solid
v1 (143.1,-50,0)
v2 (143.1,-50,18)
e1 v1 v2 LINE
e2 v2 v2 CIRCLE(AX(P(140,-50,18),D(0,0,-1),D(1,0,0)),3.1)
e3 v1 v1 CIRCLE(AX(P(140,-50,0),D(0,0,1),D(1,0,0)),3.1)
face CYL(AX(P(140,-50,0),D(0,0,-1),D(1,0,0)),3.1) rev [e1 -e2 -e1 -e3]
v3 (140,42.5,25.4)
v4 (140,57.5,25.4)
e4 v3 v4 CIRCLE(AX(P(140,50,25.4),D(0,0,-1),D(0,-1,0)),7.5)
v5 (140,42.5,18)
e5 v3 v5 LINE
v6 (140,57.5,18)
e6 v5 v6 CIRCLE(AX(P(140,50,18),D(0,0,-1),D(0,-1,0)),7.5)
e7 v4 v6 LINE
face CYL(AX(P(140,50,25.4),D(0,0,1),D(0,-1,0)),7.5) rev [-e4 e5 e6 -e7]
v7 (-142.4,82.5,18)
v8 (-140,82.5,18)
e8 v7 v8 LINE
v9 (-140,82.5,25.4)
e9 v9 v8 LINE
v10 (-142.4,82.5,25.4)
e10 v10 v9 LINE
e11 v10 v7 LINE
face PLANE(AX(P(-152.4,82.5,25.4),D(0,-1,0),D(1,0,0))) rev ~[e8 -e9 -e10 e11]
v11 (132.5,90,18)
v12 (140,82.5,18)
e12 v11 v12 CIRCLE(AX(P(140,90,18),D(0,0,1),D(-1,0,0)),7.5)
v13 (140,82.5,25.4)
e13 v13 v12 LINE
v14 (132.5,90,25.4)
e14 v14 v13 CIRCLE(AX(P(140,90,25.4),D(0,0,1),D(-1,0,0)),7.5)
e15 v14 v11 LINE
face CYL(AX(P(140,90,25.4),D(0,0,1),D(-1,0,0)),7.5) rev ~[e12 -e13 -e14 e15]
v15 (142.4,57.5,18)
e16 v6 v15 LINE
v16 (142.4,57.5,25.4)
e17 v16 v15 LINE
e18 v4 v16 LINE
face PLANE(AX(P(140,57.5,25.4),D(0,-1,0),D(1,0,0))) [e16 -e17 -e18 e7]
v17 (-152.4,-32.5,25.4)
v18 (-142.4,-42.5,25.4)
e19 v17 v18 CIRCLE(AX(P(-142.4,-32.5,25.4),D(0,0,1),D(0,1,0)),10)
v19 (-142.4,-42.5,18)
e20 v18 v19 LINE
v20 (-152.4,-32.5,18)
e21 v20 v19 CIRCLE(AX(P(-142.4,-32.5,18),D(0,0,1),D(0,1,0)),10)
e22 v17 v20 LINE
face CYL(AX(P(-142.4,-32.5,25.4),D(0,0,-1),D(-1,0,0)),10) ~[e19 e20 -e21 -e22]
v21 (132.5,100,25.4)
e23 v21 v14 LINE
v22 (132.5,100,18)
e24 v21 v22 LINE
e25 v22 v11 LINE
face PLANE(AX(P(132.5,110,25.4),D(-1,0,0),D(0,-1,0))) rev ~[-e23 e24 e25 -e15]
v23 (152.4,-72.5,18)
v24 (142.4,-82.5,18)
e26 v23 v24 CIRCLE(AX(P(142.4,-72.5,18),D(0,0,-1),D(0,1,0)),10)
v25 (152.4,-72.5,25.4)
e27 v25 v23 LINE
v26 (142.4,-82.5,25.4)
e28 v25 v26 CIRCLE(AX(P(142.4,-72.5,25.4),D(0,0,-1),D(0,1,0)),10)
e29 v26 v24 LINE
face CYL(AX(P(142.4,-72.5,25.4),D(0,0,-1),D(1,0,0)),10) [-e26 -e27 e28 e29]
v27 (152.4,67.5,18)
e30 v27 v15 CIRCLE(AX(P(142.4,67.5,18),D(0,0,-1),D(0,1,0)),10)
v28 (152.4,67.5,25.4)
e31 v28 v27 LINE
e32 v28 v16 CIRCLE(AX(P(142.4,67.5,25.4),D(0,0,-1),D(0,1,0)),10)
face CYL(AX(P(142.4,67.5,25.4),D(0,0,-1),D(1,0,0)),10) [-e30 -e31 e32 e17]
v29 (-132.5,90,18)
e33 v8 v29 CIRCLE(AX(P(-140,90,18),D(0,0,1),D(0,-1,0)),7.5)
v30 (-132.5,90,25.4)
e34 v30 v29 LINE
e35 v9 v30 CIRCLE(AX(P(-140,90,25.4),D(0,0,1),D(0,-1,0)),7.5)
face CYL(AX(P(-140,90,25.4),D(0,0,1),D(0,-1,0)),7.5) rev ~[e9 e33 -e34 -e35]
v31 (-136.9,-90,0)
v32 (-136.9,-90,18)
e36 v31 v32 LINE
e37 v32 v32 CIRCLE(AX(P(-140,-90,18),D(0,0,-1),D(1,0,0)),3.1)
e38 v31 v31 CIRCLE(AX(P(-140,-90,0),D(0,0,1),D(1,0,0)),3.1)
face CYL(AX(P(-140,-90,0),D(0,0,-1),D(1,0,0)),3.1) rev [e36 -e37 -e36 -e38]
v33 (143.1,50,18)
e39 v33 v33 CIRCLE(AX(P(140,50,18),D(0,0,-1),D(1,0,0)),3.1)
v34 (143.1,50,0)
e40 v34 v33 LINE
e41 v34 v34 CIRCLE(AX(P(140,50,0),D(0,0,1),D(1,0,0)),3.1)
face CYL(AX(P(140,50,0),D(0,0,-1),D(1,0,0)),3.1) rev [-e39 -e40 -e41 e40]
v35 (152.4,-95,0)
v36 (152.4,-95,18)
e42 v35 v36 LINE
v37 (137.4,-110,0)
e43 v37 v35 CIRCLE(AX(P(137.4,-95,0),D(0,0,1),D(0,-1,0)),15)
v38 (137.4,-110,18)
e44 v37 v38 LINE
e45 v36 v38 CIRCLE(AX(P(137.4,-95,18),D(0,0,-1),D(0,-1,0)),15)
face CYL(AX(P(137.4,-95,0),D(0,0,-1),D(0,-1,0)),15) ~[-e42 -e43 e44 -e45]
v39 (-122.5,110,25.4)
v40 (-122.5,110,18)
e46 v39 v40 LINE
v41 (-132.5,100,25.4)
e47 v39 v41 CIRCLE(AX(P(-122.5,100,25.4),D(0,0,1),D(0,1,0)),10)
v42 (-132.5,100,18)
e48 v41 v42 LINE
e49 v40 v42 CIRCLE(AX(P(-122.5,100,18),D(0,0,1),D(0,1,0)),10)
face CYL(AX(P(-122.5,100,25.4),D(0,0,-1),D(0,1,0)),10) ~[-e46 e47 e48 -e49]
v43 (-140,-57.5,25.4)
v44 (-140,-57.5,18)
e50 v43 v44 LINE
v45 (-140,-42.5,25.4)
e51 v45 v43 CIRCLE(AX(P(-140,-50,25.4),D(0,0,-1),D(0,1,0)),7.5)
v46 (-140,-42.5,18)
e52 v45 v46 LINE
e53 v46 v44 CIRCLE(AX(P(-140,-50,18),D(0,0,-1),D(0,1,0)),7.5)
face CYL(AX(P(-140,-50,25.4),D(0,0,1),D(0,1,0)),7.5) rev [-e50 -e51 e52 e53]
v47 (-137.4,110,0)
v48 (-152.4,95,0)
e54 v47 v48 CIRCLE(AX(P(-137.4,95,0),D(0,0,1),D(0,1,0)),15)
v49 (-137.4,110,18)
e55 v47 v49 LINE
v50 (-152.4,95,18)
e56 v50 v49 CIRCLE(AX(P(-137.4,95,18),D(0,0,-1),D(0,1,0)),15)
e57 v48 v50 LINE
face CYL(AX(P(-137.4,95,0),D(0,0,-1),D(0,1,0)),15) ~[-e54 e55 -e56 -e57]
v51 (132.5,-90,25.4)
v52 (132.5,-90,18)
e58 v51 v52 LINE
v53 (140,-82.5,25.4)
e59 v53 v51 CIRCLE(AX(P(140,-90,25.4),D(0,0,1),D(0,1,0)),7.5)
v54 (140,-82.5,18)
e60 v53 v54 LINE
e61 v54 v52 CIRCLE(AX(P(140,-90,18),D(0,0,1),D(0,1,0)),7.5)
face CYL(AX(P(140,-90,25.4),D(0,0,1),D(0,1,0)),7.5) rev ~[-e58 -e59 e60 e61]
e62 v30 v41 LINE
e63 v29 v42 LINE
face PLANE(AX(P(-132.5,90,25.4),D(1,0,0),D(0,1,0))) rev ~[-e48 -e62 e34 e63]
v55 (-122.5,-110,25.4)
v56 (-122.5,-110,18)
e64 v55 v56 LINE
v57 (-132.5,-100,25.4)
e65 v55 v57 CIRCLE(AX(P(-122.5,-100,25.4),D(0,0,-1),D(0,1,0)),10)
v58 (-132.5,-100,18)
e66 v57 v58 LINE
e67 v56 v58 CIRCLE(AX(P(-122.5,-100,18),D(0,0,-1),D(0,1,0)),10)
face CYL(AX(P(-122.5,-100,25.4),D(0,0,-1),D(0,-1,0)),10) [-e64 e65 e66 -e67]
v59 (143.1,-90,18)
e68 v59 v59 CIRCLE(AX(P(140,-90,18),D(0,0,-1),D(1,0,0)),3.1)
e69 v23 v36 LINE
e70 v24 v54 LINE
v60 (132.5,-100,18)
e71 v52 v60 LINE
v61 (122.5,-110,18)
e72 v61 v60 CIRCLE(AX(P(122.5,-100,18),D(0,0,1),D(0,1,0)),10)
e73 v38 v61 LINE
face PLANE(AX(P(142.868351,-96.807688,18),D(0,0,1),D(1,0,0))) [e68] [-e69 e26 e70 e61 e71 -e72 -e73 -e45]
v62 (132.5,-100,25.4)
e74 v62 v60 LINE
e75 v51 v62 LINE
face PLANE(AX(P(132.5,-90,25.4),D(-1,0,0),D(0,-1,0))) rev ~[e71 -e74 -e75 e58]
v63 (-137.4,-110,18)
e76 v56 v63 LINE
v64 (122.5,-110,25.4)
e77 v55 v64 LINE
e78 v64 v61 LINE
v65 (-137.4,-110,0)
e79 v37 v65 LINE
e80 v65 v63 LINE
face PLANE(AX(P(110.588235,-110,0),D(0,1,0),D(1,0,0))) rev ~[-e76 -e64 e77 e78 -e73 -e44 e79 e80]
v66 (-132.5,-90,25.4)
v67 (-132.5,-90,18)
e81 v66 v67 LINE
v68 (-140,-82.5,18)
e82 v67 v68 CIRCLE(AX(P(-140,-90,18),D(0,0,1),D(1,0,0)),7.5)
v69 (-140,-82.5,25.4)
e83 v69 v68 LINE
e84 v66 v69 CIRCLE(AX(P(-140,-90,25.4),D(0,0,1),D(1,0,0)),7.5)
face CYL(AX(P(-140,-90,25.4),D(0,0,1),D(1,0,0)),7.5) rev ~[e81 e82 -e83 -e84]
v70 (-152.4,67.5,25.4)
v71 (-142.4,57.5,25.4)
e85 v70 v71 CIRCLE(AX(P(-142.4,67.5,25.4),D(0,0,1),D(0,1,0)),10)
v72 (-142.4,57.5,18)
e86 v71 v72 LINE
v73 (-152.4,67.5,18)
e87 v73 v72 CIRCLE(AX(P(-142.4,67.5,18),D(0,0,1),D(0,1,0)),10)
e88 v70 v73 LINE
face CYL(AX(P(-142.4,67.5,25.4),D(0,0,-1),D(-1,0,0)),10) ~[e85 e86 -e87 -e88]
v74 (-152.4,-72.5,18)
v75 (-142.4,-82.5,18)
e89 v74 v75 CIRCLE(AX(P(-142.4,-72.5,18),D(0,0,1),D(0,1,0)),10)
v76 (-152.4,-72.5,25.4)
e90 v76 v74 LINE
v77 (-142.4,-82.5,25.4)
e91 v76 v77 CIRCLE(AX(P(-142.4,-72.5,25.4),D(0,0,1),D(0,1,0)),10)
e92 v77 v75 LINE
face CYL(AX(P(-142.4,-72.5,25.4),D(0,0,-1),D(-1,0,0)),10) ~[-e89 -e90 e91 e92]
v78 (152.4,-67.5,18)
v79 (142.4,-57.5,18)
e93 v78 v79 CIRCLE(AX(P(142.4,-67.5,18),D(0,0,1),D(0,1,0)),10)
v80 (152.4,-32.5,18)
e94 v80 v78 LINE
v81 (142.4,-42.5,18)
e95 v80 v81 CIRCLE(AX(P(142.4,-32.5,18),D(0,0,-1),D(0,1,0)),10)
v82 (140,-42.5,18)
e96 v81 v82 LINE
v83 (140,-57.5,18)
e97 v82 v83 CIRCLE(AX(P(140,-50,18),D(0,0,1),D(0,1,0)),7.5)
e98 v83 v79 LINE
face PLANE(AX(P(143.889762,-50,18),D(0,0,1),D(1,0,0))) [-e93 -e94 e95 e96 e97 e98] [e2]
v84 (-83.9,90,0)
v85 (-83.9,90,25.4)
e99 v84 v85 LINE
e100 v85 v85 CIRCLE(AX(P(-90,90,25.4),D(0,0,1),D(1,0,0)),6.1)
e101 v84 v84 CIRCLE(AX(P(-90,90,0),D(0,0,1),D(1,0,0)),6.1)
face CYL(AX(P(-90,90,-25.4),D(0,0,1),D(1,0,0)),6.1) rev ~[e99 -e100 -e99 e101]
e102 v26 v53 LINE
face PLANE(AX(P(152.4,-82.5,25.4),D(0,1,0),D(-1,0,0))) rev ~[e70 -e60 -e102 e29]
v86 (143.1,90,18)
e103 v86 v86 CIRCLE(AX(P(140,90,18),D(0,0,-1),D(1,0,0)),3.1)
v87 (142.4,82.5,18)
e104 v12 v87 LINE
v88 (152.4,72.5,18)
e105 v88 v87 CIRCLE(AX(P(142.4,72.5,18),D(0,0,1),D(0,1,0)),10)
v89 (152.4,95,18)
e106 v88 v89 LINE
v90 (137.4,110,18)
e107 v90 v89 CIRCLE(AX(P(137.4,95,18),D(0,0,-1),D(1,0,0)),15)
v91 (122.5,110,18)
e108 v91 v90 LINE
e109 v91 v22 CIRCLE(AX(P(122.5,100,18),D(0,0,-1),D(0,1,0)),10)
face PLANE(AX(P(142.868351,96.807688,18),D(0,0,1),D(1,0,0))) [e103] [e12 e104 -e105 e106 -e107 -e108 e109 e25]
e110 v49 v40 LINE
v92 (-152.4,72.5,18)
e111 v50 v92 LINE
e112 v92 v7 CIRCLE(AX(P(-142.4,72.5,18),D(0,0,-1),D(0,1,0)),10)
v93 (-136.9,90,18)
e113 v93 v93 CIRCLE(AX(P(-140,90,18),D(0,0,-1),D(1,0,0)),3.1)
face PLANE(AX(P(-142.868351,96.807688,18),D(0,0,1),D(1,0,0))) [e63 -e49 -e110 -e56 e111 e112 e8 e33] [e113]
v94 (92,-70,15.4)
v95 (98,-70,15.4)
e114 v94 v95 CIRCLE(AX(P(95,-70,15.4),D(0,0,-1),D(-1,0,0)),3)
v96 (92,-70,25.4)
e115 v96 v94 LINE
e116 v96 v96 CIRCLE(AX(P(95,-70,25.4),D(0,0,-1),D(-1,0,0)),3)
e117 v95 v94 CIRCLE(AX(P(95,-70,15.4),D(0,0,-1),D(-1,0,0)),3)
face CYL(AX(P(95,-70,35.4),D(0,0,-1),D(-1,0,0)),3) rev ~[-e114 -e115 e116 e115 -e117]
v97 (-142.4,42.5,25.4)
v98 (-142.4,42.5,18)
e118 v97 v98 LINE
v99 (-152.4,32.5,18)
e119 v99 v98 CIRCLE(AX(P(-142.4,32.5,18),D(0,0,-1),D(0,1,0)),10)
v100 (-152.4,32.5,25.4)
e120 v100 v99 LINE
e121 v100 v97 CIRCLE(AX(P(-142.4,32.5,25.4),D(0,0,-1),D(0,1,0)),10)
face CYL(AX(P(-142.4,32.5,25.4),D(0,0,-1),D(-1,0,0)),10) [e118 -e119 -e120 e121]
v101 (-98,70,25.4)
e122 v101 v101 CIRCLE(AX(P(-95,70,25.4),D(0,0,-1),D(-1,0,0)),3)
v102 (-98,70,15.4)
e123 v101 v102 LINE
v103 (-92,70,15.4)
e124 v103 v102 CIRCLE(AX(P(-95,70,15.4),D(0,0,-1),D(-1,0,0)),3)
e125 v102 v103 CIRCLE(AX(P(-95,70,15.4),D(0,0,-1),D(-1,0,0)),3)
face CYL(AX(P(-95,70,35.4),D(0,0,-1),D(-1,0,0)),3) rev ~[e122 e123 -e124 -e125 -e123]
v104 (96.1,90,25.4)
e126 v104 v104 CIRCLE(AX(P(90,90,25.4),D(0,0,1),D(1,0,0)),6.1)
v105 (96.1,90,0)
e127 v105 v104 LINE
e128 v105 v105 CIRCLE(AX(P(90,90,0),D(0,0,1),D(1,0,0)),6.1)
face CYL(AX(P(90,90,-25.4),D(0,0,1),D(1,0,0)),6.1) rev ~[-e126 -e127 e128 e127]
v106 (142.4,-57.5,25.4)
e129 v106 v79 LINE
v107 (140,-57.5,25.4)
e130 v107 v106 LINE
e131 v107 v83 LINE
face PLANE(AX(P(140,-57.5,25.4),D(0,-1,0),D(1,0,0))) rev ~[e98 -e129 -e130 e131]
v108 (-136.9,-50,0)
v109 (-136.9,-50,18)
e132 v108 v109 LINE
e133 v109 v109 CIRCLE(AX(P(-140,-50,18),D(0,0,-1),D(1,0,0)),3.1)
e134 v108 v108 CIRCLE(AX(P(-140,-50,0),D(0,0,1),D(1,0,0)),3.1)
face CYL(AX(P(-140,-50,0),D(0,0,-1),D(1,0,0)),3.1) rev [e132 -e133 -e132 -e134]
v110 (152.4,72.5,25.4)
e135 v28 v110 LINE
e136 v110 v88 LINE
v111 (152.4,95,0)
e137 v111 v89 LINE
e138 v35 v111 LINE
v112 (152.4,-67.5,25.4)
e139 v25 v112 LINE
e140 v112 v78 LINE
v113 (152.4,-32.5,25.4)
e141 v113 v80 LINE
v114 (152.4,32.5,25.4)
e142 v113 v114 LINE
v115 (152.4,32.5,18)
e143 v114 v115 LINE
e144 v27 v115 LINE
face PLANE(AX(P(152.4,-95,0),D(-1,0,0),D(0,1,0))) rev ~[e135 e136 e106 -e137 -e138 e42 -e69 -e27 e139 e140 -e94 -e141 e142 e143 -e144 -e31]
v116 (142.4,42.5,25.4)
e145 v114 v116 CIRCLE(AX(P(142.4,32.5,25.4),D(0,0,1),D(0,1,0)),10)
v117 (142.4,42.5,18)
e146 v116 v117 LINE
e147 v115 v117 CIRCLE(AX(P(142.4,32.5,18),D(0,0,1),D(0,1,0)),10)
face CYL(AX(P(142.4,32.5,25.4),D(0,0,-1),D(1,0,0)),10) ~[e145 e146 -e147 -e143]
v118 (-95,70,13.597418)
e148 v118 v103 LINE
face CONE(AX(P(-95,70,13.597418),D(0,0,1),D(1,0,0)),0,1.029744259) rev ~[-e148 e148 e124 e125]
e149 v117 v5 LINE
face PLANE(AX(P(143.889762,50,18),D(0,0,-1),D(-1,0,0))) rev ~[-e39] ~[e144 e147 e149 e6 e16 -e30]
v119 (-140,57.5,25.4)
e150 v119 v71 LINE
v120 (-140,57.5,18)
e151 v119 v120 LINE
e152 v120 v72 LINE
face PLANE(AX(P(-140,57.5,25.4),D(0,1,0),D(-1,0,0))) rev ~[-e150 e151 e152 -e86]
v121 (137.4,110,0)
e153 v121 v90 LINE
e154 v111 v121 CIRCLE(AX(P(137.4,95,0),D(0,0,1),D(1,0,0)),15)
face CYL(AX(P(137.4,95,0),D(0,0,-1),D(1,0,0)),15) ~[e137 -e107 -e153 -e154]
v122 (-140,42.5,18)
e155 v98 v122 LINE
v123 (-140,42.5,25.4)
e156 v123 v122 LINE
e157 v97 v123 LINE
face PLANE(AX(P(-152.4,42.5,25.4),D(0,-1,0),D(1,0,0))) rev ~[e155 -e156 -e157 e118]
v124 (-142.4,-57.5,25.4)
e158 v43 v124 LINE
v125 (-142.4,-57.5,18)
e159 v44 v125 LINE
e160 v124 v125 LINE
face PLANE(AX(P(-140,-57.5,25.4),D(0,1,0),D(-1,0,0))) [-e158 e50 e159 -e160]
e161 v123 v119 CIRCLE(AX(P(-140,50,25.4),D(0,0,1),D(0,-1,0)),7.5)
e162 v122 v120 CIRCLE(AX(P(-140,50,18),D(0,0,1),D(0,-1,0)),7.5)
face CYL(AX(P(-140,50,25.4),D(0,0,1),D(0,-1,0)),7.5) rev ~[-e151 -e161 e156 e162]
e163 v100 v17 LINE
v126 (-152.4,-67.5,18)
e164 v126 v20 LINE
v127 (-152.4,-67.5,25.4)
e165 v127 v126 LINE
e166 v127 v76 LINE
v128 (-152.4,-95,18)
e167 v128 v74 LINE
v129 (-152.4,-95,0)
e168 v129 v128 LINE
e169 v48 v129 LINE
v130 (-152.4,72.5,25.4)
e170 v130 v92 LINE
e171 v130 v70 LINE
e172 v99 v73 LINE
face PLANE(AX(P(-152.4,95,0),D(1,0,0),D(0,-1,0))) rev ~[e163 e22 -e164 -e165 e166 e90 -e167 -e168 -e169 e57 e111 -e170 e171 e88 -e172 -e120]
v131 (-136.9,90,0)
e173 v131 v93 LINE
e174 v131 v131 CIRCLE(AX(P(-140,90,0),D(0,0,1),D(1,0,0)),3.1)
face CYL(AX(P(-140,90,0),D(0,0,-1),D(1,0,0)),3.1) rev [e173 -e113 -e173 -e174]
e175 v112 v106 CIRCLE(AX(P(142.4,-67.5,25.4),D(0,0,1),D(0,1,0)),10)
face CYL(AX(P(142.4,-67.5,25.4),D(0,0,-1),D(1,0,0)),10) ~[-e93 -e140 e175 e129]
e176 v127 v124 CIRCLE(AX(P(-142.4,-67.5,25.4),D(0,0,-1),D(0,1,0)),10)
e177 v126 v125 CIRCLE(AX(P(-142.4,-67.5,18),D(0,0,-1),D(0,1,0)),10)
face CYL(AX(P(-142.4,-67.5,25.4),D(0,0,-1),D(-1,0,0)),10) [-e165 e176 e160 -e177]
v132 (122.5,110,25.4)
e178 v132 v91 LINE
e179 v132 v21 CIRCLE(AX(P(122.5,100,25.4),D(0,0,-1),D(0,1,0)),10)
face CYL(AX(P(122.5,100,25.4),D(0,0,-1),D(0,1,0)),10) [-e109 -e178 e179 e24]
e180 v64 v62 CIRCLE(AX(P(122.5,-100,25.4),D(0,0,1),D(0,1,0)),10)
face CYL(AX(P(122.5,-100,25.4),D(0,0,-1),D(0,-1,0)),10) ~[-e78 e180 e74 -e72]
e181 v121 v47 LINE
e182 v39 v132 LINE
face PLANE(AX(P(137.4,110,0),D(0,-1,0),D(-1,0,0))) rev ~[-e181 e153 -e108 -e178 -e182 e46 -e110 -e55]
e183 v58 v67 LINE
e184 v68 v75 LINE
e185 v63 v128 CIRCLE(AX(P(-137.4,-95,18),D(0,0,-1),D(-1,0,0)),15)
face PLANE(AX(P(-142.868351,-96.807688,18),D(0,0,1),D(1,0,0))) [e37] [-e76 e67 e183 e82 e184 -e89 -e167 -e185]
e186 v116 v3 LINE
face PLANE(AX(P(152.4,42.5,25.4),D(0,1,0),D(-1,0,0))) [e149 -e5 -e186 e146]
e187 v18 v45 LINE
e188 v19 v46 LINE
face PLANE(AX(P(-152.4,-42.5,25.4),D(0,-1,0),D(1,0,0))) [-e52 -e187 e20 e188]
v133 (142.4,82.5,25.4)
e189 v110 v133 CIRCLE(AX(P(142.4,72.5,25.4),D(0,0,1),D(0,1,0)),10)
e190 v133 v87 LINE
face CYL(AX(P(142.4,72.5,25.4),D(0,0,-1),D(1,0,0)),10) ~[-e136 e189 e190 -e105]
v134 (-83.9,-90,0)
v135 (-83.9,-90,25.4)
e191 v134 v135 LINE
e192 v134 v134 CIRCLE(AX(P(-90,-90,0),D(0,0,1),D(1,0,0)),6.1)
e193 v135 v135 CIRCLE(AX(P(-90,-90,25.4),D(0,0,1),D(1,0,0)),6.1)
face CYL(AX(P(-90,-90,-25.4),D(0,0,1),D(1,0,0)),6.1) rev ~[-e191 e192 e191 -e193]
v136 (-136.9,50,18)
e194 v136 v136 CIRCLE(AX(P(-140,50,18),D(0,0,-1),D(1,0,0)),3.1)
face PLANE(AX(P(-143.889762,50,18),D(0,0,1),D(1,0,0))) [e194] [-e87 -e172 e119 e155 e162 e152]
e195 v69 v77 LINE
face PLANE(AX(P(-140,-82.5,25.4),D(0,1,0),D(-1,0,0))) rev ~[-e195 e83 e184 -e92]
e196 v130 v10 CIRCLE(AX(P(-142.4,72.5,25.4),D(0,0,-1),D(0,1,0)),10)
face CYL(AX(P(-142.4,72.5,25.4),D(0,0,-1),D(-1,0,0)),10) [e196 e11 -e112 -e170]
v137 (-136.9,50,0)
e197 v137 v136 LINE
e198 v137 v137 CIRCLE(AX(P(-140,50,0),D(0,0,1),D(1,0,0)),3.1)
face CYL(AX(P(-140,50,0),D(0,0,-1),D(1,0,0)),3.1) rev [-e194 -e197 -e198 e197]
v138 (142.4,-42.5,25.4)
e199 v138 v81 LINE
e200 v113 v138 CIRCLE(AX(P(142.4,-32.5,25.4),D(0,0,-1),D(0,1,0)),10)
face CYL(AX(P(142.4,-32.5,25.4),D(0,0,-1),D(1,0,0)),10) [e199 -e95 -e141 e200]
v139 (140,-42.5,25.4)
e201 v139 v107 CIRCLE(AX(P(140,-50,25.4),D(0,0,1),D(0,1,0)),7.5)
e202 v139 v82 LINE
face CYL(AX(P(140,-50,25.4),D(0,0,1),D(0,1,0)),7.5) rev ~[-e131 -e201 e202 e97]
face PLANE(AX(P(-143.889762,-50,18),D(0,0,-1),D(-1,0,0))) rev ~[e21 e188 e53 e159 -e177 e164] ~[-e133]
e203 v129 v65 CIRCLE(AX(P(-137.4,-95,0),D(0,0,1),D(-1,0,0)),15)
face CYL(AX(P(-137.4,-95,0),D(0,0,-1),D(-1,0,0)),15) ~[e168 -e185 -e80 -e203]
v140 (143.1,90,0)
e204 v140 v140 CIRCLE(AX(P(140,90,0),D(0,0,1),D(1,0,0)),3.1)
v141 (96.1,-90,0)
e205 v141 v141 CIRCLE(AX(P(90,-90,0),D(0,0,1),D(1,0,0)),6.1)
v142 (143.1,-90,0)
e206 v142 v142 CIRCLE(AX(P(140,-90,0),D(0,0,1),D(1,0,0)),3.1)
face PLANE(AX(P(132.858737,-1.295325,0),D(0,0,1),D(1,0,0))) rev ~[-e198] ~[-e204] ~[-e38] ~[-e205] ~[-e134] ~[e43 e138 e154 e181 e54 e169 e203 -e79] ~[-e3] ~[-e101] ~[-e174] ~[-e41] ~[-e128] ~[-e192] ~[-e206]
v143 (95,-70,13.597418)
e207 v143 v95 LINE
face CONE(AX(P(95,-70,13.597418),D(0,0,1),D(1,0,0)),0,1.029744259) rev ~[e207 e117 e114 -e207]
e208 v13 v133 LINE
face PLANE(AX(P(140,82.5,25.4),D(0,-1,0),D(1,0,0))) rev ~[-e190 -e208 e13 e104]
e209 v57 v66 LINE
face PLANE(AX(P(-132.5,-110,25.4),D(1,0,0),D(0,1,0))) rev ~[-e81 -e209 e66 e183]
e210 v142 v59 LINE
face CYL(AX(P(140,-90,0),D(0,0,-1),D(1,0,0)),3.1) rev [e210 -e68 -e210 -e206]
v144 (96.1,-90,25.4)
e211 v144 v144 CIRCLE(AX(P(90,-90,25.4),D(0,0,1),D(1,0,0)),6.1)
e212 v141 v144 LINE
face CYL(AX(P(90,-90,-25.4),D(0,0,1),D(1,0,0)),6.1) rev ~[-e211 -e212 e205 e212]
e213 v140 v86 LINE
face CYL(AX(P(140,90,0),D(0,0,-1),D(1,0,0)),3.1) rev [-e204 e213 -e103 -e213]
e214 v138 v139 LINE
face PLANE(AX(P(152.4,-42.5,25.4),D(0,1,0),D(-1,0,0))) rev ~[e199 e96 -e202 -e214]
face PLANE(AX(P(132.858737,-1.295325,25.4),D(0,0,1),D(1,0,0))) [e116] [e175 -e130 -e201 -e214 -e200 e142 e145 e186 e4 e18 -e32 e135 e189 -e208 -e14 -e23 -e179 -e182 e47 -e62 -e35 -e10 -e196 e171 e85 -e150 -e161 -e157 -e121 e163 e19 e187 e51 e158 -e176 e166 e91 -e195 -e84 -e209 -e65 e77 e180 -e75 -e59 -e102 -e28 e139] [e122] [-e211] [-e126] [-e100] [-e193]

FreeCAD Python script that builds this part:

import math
import FreeCAD as App
import Part
import Sketcher
Q = App.Units.Quantity


def edges_at(feature, points):
    """Names of the edges that pass closest to the given points."""
    edges = feature.Shape.Edges
    near = lambda p: min(range(len(edges)), key=lambda i: edges[i].distToShape(Part.Vertex(*p))[0])
    return sorted({f"Edge{near(p) + 1}" for p in points})


def add_polygon(sketch, points):
    """Adds a closed chain of lines whose ends are joined by coincident constraints."""
    first, n = sketch.GeometryCount, len(points)
    for a, b in zip(points, points[1:] + points[:1]):
        sketch.addGeometry(Part.LineSegment(App.Vector(*a, 0), App.Vector(*b, 0)), False)
    for i in range(n):
        sketch.addConstraint(Sketcher.Constraint("Coincident", first + i, 2, first + (i + 1) % n, 1))

doc = App.newDocument("Part")
body = doc.addObject("PartDesign::Body", "Body")

sketch1 = body.newObject("Sketcher::SketchObject", "Sketch")
sketch1.AttachmentSupport = (doc.getObject("XY_Plane"), [""])
sketch1.MapMode = "FlatFace"
sketch1.addGeometry([
    Part.LineSegment(App.Vector(-20, -40, 0), App.Vector(20, -40, 0)),
    Part.ArcOfCircle(Part.Circle(App.Vector(20, -10, 0), App.Vector(0, 0, 1), 30), math.radians(-90), math.radians(0)),
    Part.LineSegment(App.Vector(50, -10, 0), App.Vector(50, -5, 0)),
    Part.LineSegment(App.Vector(50, -5, 0), App.Vector(55, 0, 0)),
    Part.LineSegment(App.Vector(55, 0, 0), App.Vector(50, 5, 0)),
    Part.LineSegment(App.Vector(50, 5, 0), App.Vector(50, 100, 0)),
    Part.ArcOfCircle(Part.Circle(App.Vector(60, 100, 0), App.Vector(0, 0, 1), 10), math.radians(90), math.radians(180)),
    Part.LineSegment(App.Vector(60, 110, 0), App.Vector(165, 110, 0)),
    Part.ArcOfCircle(Part.Circle(App.Vector(165, 100, 0), App.Vector(0, 0, 1), 10), math.radians(0), math.radians(90)),
    Part.LineSegment(App.Vector(175, 100, 0), App.Vector(175, 40, 0)),
    Part.ArcOfCircle(Part.Circle(App.Vector(165, 40, 0), App.Vector(0, 0, 1), 10), math.radians(-90), math.radians(0)),
    Part.LineSegment(App.Vector(165, 30, 0), App.Vector(155, 30, 0)),
    Part.ArcOfCircle(Part.Circle(App.Vector(155, -10, 0), App.Vector(0, 0, 1), 40), math.radians(90), math.radians(180)),
    Part.LineSegment(App.Vector(115, -10, 0), App.Vector(115, -104.243791, 0)),
    Part.ArcOfCircle(Part.Circle(App.Vector(113, -104.243791, 0), App.Vector(0, 0, 1), 2), math.radians(-41.423665), math.radians(0)),
    Part.LineSegment(App.Vector(114.499676, -105.567034, 0), App.Vector(40.597138, -189.323243, 0)),
    Part.ArcOfCircle(Part.Circle(App.Vector(39.097463, -188, 0), App.Vector(0, 0, 1), 2), math.radians(-90), math.radians(-41.423665)),
    Part.LineSegment(App.Vector(39.097463, -190, 0), App.Vector(-39.097463, -190, 0)),
    Part.ArcOfCircle(Part.Circle(App.Vector(-39.097463, -188, 0), App.Vector(0, 0, 1), 2), math.radians(-138.576335), math.radians(-90)),
    Part.LineSegment(App.Vector(-40.597138, -189.323243, 0), App.Vector(-114.499676, -105.567034, 0)),
    Part.ArcOfCircle(Part.Circle(App.Vector(-113, -104.243791, 0), App.Vector(0, 0, 1), 2), math.radians(-180), math.radians(-138.576335)),
    Part.LineSegment(App.Vector(-115, -104.243791, 0), App.Vector(-115, -10, 0)),
    Part.ArcOfCircle(Part.Circle(App.Vector(-155, -10, 0), App.Vector(0, 0, 1), 40), math.radians(0), math.radians(90)),
    Part.LineSegment(App.Vector(-155, 30, 0), App.Vector(-165, 30, 0)),
    Part.ArcOfCircle(Part.Circle(App.Vector(-165, 40, 0), App.Vector(0, 0, 1), 10), math.radians(180), math.radians(270)),
    Part.LineSegment(App.Vector(-175, 40, 0), App.Vector(-175, 100, 0)),
    Part.ArcOfCircle(Part.Circle(App.Vector(-165, 100, 0), App.Vector(0, 0, 1), 10), math.radians(90), math.radians(180)),
    Part.LineSegment(App.Vector(-165, 110, 0), App.Vector(-60, 110, 0)),
    Part.ArcOfCircle(Part.Circle(App.Vector(-60, 100, 0), App.Vector(0, 0, 1), 10), math.radians(0), math.radians(90)),
    Part.LineSegment(App.Vector(-50, 100, 0), App.Vector(-50, 5, 0)),
    Part.LineSegment(App.Vector(-50, 5, 0), App.Vector(-55, 0, 0)),
    Part.LineSegment(App.Vector(-55, 0, 0), App.Vector(-50, -5, 0)),
    Part.LineSegment(App.Vector(-50, -5, 0), App.Vector(-50, -10, 0)),
    Part.ArcOfCircle(Part.Circle(App.Vector(-20, -10, 0), App.Vector(0, 0, 1), 30), math.radians(180), math.radians(270)),
], False)
sketch1.addConstraint([
    Sketcher.Constraint("Tangent", 0, 2, 1, 1),
    Sketcher.Constraint("Tangent", 1, 2, 2, 1),
    Sketcher.Constraint("Coincident", 2, 2, 3, 1),
    Sketcher.Constraint("Coincident", 3, 2, 4, 1),
    Sketcher.Constraint("Coincident", 4, 2, 5, 1),
    Sketcher.Constraint("Tangent", 5, 2, 6, 2),
    Sketcher.Constraint("Tangent", 6, 1, 7, 1),
    Sketcher.Constraint("Tangent", 7, 2, 8, 2),
    Sketcher.Constraint("Tangent", 8, 1, 9, 1),
    Sketcher.Constraint("Tangent", 9, 2, 10, 2),
    Sketcher.Constraint("Tangent", 10, 1, 11, 1),
    Sketcher.Constraint("Tangent", 11, 2, 12, 1),
    Sketcher.Constraint("Tangent", 12, 2, 13, 1),
    Sketcher.Constraint("Tangent", 13, 2, 14, 2),
    Sketcher.Constraint("Tangent", 14, 1, 15, 1),
    Sketcher.Constraint("Tangent", 15, 2, 16, 2),
    Sketcher.Constraint("Tangent", 16, 1, 17, 1),
    Sketcher.Constraint("Tangent", 17, 2, 18, 2),
    Sketcher.Constraint("Tangent", 18, 1, 19, 1),
    Sketcher.Constraint("Tangent", 19, 2, 20, 2),
    Sketcher.Constraint("Tangent", 20, 1, 21, 1),
    Sketcher.Constraint("Tangent", 21, 2, 22, 1),
    Sketcher.Constraint("Tangent", 22, 2, 23, 1),
    Sketcher.Constraint("Tangent", 23, 2, 24, 2),
    Sketcher.Constraint("Tangent", 24, 1, 25, 1),
    Sketcher.Constraint("Tangent", 25, 2, 26, 2),
    Sketcher.Constraint("Tangent", 26, 1, 27, 1),
    Sketcher.Constraint("Tangent", 27, 2, 28, 2),
    Sketcher.Constraint("Tangent", 28, 1, 29, 1),
    Sketcher.Constraint("Coincident", 29, 2, 30, 1),
    Sketcher.Constraint("Coincident", 30, 2, 31, 1),
    Sketcher.Constraint("Coincident", 31, 2, 32, 1),
    Sketcher.Constraint("Tangent", 32, 2, 33, 1),
    Sketcher.Constraint("Tangent", 33, 2, 0, 1),
    Sketcher.Constraint("Horizontal", 0),
    Sketcher.Constraint("Vertical", 2),
    Sketcher.Constraint("Vertical", 5),
    Sketcher.Constraint("Horizontal", 7),
    Sketcher.Constraint("Vertical", 9),
    Sketcher.Constraint("Horizontal", 11),
    Sketcher.Constraint("Vertical", 13),
    Sketcher.Constraint("Horizontal", 17),
    Sketcher.Constraint("Vertical", 21),
    Sketcher.Constraint("Horizontal", 23),
    Sketcher.Constraint("Vertical", 25),
    Sketcher.Constraint("Horizontal", 27),
    Sketcher.Constraint("Vertical", 29),
    Sketcher.Constraint("Vertical", 32),
    Sketcher.Constraint("Equal", 6, 8),
    Sketcher.Constraint("Equal", 8, 10),
    Sketcher.Constraint("Equal", 14, 16),
    Sketcher.Constraint("Equal", 16, 18),
    Sketcher.Constraint("Equal", 18, 20),
    Sketcher.Constraint("Equal", 12, 22),
    Sketcher.Constraint("Equal", 10, 24),
    Sketcher.Constraint("Equal", 24, 26),
    Sketcher.Constraint("Equal", 26, 28),
    Sketcher.Constraint("Equal", 1, 33),
    Sketcher.Constraint("Symmetric", 2, 2, 29, 2, -1, 1),
    Sketcher.Constraint("Symmetric", 3, 2, 30, 2, -1, 1),
    Sketcher.Constraint("Symmetric", 4, 2, 31, 2, -1, 1),
    Sketcher.Constraint("Symmetric", 14, 3, 20, 3, -2),
    Sketcher.Constraint("Symmetric", 10, 3, 24, 3, -2),
    Sketcher.Constraint("Symmetric", 6, 3, 28, 3, -2),
    Sketcher.Constraint("PointOnObject", 3, 2, -1),
    Sketcher.Constraint("Perpendicular", 3, 4),
    Sketcher.Constraint("Horizontal", 1, 3, 12, 3),
    Sketcher.Constraint("Horizontal", 15, 2, 18, 1),
    Sketcher.Constraint("Horizontal", 4, 2, 29, 2),
    Sketcher.Constraint("Radius", 1, Q("30 mm")),
    Sketcher.Constraint("Radius", 6, Q("10 mm")),
    Sketcher.Constraint("Radius", 12, Q("40 mm")),
    Sketcher.Constraint("Radius", 14, Q("2 mm")),
    Sketcher.Constraint("DistanceX", 0, 1, 0, 2, Q("40 mm")),
    Sketcher.Constraint("DistanceX", 7, 1, 7, 2, Q("105 mm")),
    Sketcher.Constraint("DistanceX", 11, 2, 11, 1, Q("10 mm")),
    Sketcher.Constraint("DistanceY", 2, 1, 2, 2, Q("5 mm")),
    Sketcher.Constraint("DistanceY", 5, 1, 5, 2, Q("95 mm")),
    Sketcher.Constraint("DistanceY", 9, 2, 9, 1, Q("60 mm")),
    Sketcher.Constraint("DistanceY", 16, 3, -1, 1, Q("188 mm")),
    Sketcher.Constraint("DistanceY", 13, 2, 13, 1, Q("94.243791 mm")),
    Sketcher.Constraint("DistanceX", 18, 3, 15, 2, Q("79.694601 mm")),
])
pad1 = body.newObject("PartDesign::Pad", "Pad")
pad1.Profile = sketch1
pad1.Length = 25.4

sketch2 = body.newObject("Sketcher::SketchObject", "Sketch001")
sketch2.AttachmentSupport = (doc.getObject("XY_Plane"), [""])
sketch2.MapMode = "FlatFace"
add_polygon(sketch2, [(5, -40), (0, -45), (-5, -40)])
sketch2.addConstraint([
    Sketcher.Constraint("Horizontal", 2),
    Sketcher.Constraint("PointOnObject", 0, 2, -2),
    Sketcher.Constraint("Perpendicular", 0, 1),
    Sketcher.Constraint("Equal", 0, 1),
    Sketcher.Constraint("DistanceX", 2, 1, 2, 2, Q("10 mm")),
    Sketcher.Constraint("DistanceY", 0, 2, -1, 1, Q("45 mm")),
])
pocket1 = body.newObject("PartDesign::Pocket", "Pocket")
pocket1.Profile = sketch2
pocket1.Type = "ThroughAll"
pocket1.Reversed = True

sketch3 = body.newObject("Sketcher::SketchObject", "Sketch002")
sketch3.AttachmentSupport = (doc.getObject("XY_Plane"), [""])
sketch3.MapMode = "FlatFace"
sketch3.addGeometry([
    Part.Circle(App.Vector(90, -90, 0), App.Vector(0, 0, 1), 6.1),
    Part.Circle(App.Vector(-90, -90, 0), App.Vector(0, 0, 1), 6.1),
    Part.Circle(App.Vector(90, 90, 0), App.Vector(0, 0, 1), 6.1),
    Part.Circle(App.Vector(-90, 90, 0), App.Vector(0, 0, 1), 6.1),
], False)
sketch3.addConstraint([
    Sketcher.Constraint("Equal", 0, 1),
    Sketcher.Constraint("Equal", 1, 2),
    Sketcher.Constraint("Equal", 2, 3),
    Sketcher.Constraint("Symmetric", 1, 3, 2, 3, -1, 1),
    Sketcher.Constraint("Symmetric", 0, 3, 3, 3, -1, 1),
    Sketcher.Constraint("Symmetric", 0, 3, 1, 3, -2),
    Sketcher.Constraint("Diameter", 0, Q("12.2 mm")),
    Sketcher.Constraint("DistanceX", -1, 1, 0, 3, Q("90 mm")),
    Sketcher.Constraint("DistanceY", 0, 3, -1, 1, Q("90 mm")),
])
doc.recompute()
hole = body.newObject("PartDesign::Hole", "Hole")
hole.Profile = sketch3
hole.ThreadType = "None"
hole.Diameter = 12.2
hole.DepthType = "Dimension"
hole.Depth = 25.4
hole.DrillPoint = "Flat"
hole.Reversed = True

sketch4 = body.newObject("Sketcher::SketchObject", "Sketch003")
sketch4.AttachmentSupport = (doc.getObject("XY_Plane"), [""])
sketch4.MapMode = "FlatFace"
sketch4.addGeometry([
    Part.Circle(App.Vector(0, -150, 0), App.Vector(0, 0, 1), 7.5),
    Part.Circle(App.Vector(135, 60, 0), App.Vector(0, 0, 1), 7.5),
    Part.Circle(App.Vector(-135, 60, 0), App.Vector(0, 0, 1), 7.5),
], False)
sketch4.addConstraint([
    Sketcher.Constraint("Equal", 0, 1),
    Sketcher.Constraint("Equal", 1, 2),
    Sketcher.Constraint("Symmetric", 1, 3, 2, 3, -2),
    Sketcher.Constraint("PointOnObject", 0, 3, -2),
    Sketcher.Constraint("Diameter", 0, Q("15 mm")),
    Sketcher.Constraint("DistanceY", 0, 3, -1, 1, Q("150 mm")),
    Sketcher.Constraint("DistanceX", -1, 1, 1, 3, Q("135 mm")),
    Sketcher.Constraint("DistanceY", -1, 1, 1, 3, Q("60 mm")),
])
doc.recompute()
hole2 = body.newObject("PartDesign::Hole", "Hole001")
hole2.Profile = sketch4
hole2.ThreadType = "None"
hole2.Diameter = 15
hole2.DepthType = "Dimension"
hole2.Depth = 25.4
hole2.DrillPoint = "Flat"
hole2.Reversed = True

sketch5 = body.newObject("Sketcher::SketchObject", "Sketch004")
sketch5.AttachmentSupport = (doc.getObject("XY_Plane"), [""])
sketch5.MapMode = "FlatFace"
sketch5.addGeometry(Part.Circle(App.Vector(0, 0, 0), App.Vector(0, 0, 1), 300), False)
add_polygon(sketch5, [(115, -110), (-115, -110), (-115, 110), (115, 110)])
sketch5.addConstraint([
    Sketcher.Constraint("Horizontal", 1),
    Sketcher.Constraint("Vertical", 2),
    Sketcher.Constraint("Horizontal", 3),
    Sketcher.Constraint("Vertical", 4),
    Sketcher.Constraint("Coincident", 0, 3, -1, 1),
    Sketcher.Constraint("Symmetric", 1, 2, 3, 2, -1, 1),
    Sketcher.Constraint("Diameter", 0, Q("600 mm")),
    Sketcher.Constraint("DistanceX", 1, 2, 1, 1, Q("230 mm")),
    Sketcher.Constraint("DistanceY", 2, 1, 2, 2, Q("220 mm")),
])
pocket2 = body.newObject("PartDesign::Pocket", "Pocket001")
pocket2.Profile = sketch5
pocket2.Type = "ThroughAll"
pocket2.Reversed = True

sketch6 = body.newObject("Sketcher::SketchObject", "Sketch005")
sketch6.AttachmentSupport = (doc.getObject("XY_Plane"), [""])
sketch6.MapMode = "FlatFace"
sketch6.addGeometry([
    Part.LineSegment(App.Vector(137.4, 110, 0), App.Vector(115, 110, 0)),
    Part.LineSegment(App.Vector(115, 110, 0), App.Vector(115, -104.243791, 0)),
    Part.ArcOfCircle(Part.Circle(App.Vector(113, -104.243791, 0), App.Vector(0, 0, 1), 2), math.radians(-41.423665), math.radians(0)),
    Part.LineSegment(App.Vector(114.499676, -105.567034, 0), App.Vector(110.588235, -110, 0)),
    Part.LineSegment(App.Vector(110.588235, -110, 0), App.Vector(137.4, -110, 0)),
    Part.ArcOfCircle(Part.Circle(App.Vector(137.4, -95, 0), App.Vector(0, 0, 1), 15), math.radians(-90), math.radians(0)),
    Part.LineSegment(App.Vector(152.4, -95, 0), App.Vector(152.4, 95, 0)),
    Part.ArcOfCircle(Part.Circle(App.Vector(137.4, 95, 0), App.Vector(0, 0, 1), 15), math.radians(0), math.radians(90)),
    Part.Circle(App.Vector(140, -90, 0), App.Vector(0, 0, 1), 3.1),
    Part.Circle(App.Vector(140, -50, 0), App.Vector(0, 0, 1), 3.1),
    Part.Circle(App.Vector(140, 50, 0), App.Vector(0, 0, 1), 3.1),
    Part.Circle(App.Vector(140, 90, 0), App.Vector(0, 0, 1), 3.1),
    Part.ArcOfCircle(Part.Circle(App.Vector(60, 100, 0), App.Vector(0, 0, 1), 10), math.radians(90), math.radians(180)),
    Part.LineSegment(App.Vector(60, 110, 0), App.Vector(-60, 110, 0)),
    Part.ArcOfCircle(Part.Circle(App.Vector(-60, 100, 0), App.Vector(0, 0, 1), 10), math.radians(0), math.radians(90)),
    Part.LineSegment(App.Vector(-50, 100, 0), App.Vector(-50, 5, 0)),
    Part.LineSegment(App.Vector(-50, 5, 0), App.Vector(-55, 0, 0)),
    Part.LineSegment(App.Vector(-55, 0, 0), App.Vector(-50, -5, 0)),
    Part.LineSegment(App.Vector(-50, -5, 0), App.Vector(-50, -10, 0)),
    Part.ArcOfCircle(Part.Circle(App.Vector(-20, -10, 0), App.Vector(0, 0, 1), 30), math.radians(180), math.radians(270)),
    Part.LineSegment(App.Vector(-20, -40, 0), App.Vector(-5, -40, 0)),
    Part.LineSegment(App.Vector(-5, -40, 0), App.Vector(0, -45, 0)),
    Part.LineSegment(App.Vector(0, -45, 0), App.Vector(5, -40, 0)),
    Part.LineSegment(App.Vector(5, -40, 0), App.Vector(20, -40, 0)),
    Part.ArcOfCircle(Part.Circle(App.Vector(20, -10, 0), App.Vector(0, 0, 1), 30), math.radians(-90), math.radians(0)),
    Part.LineSegment(App.Vector(50, -10, 0), App.Vector(50, -5, 0)),
    Part.LineSegment(App.Vector(50, -5, 0), App.Vector(55, 0, 0)),
    Part.LineSegment(App.Vector(55, 0, 0), App.Vector(50, 5, 0)),
    Part.LineSegment(App.Vector(50, 5, 0), App.Vector(50, 100, 0)),
    Part.LineSegment(App.Vector(-115, -104.243791, 0), App.Vector(-115, 110, 0)),
    Part.LineSegment(App.Vector(-115, 110, 0), App.Vector(-137.4, 110, 0)),
    Part.ArcOfCircle(Part.Circle(App.Vector(-137.4, 95, 0), App.Vector(0, 0, 1), 15), math.radians(90), math.radians(180)),
    Part.LineSegment(App.Vector(-152.4, 95, 0), App.Vector(-152.4, -95, 0)),
    Part.ArcOfCircle(Part.Circle(App.Vector(-137.4, -95, 0), App.Vector(0, 0, 1), 15), math.radians(180), math.radians(270)),
    Part.LineSegment(App.Vector(-137.4, -110, 0), App.Vector(-110.588235, -110, 0)),
    Part.LineSegment(App.Vector(-110.588235, -110, 0), App.Vector(-114.499676, -105.567034, 0)),
    Part.ArcOfCircle(Part.Circle(App.Vector(-113, -104.243791, 0), App.Vector(0, 0, 1), 2), math.radians(-180), math.radians(-138.576335)),
    Part.Circle(App.Vector(-140, -90, 0), App.Vector(0, 0, 1), 3.1),
    Part.Circle(App.Vector(-140, -50, 0), App.Vector(0, 0, 1), 3.1),
    Part.Circle(App.Vector(-140, 50, 0), App.Vector(0, 0, 1), 3.1),
    Part.Circle(App.Vector(-140, 90, 0), App.Vector(0, 0, 1), 3.1),
], False)
sketch6.addConstraint([
    Sketcher.Constraint("Coincident", 0, 2, 1, 1),
    Sketcher.Constraint("Tangent", 1, 2, 2, 2),
    Sketcher.Constraint("Tangent", 2, 1, 3, 1),
    Sketcher.Constraint("Coincident", 3, 2, 4, 1),
    Sketcher.Constraint("Tangent", 4, 2, 5, 1),
    Sketcher.Constraint("Tangent", 5, 2, 6, 1),
    Sketcher.Constraint("Tangent", 6, 2, 7, 1),
    Sketcher.Constraint("Tangent", 7, 2, 0, 1),
    Sketcher.Constraint("Tangent", 12, 1, 13, 1),
    Sketcher.Constraint("Tangent", 13, 2, 14, 2),
    Sketcher.Constraint("Tangent", 14, 1, 15, 1),
    Sketcher.Constraint("Coincident", 15, 2, 16, 1),
    Sketcher.Constraint("Coincident", 16, 2, 17, 1),
    Sketcher.Constraint("Coincident", 17, 2, 18, 1),
    Sketcher.Constraint("Tangent", 18, 2, 19, 1),
    Sketcher.Constraint("Tangent", 19, 2, 20, 1),
    Sketcher.Constraint("Coincident", 20, 2, 21, 1),
    Sketcher.Constraint("Coincident", 21, 2, 22, 1),
    Sketcher.Constraint("Coincident", 22, 2, 23, 1),
    Sketcher.Constraint("Tangent", 23, 2, 24, 1),
    Sketcher.Constraint("Tangent", 24, 2, 25, 1),
    Sketcher.Constraint("Coincident", 25, 2, 26, 1),
    Sketcher.Constraint("Coincident", 26, 2, 27, 1),
    Sketcher.Constraint("Coincident", 27, 2, 28, 1),
    Sketcher.Constraint("Tangent", 28, 2, 12, 2),
    Sketcher.Constraint("Coincident", 29, 2, 30, 1),
    Sketcher.Constraint("Tangent", 30, 2, 31, 1),
    Sketcher.Constraint("Tangent", 31, 2, 32, 1),
    Sketcher.Constraint("Tangent", 32, 2, 33, 1),
    Sketcher.Constraint("Tangent", 33, 2, 34, 1),
    Sketcher.Constraint("Coincident", 34, 2, 35, 1),
    Sketcher.Constraint("Tangent", 35, 2, 36, 2),
    Sketcher.Constraint("Tangent", 36, 1, 29, 1),
    Sketcher.Constraint("Horizontal", 0),
    Sketcher.Constraint("Vertical", 1),
    Sketcher.Constraint("Horizontal", 4),
    Sketcher.Constraint("Vertical", 6),
    Sketcher.Constraint("Horizontal", 13),
    Sketcher.Constraint("Vertical", 15),
    Sketcher.Constraint("Vertical", 18),
    Sketcher.Constraint("Horizontal", 20),
    Sketcher.Constraint("Horizontal", 23),
    Sketcher.Constraint("Vertical", 25),
    Sketcher.Constraint("Vertical", 28),
    Sketcher.Constraint("Vertical", 29),
    Sketcher.Constraint("Horizontal", 30),
    Sketcher.Constraint("Vertical", 32),
    Sketcher.Constraint("Horizontal", 34),
    Sketcher.Constraint("Equal", 5, 7),
    Sketcher.Constraint("Equal", 8, 9),
    Sketcher.Constraint("Equal", 9, 10),
    Sketcher.Constraint("Equal", 10, 11),
    Sketcher.Constraint("Equal", 12, 14),
    Sketcher.Constraint("Equal", 19, 24),
    Sketcher.Constraint("Equal", 7, 31),
    Sketcher.Constraint("Equal", 31, 33),
    Sketcher.Constraint("Equal", 2, 36),
    Sketcher.Constraint("Equal", 11, 37),
    Sketcher.Constraint("Equal", 37, 38),
    Sketcher.Constraint("Equal", 38, 39),
    Sketcher.Constraint("Equal", 39, 40),
    Sketcher.Constraint("Symmetric", 5, 3, 31, 3, -1, 1),
    Sketcher.Constraint("Symmetric", 11, 3, 37, 3, -1, 1),
    Sketcher.Constraint("Symmetric", 10, 3, 38, 3, -1, 1),
    Sketcher.Constraint("Symmetric", 9, 3, 39, 3, -1, 1),
    Sketcher.Constraint("Symmetric", 8, 3, 40, 3, -1, 1),
    Sketcher.Constraint("Symmetric", 15, 2, 25, 2, -1, 1),
    Sketcher.Constraint("Symmetric", 16, 2, 26, 2, -1, 1),
    Sketcher.Constraint("Symmetric", 17, 2, 27, 2, -1, 1),
    Sketcher.Constraint("Symmetric", 19, 3, 24, 3, -2),
    Sketcher.Constraint("Symmetric", 2, 3, 36, 3, -2),
    Sketcher.Constraint("Symmetric", 8, 3, 37, 3, -2),
    Sketcher.Constraint("Symmetric", 9, 3, 38, 3, -2),
    Sketcher.Constraint("Symmetric", 3, 2, 34, 2, -2),
    Sketcher.Constraint("PointOnObject", 16, 2, -1),
    Sketcher.Constraint("PointOnObject", 21, 2, -2),
    Sketcher.Constraint("Perpendicular", 16, 17),
    Sketcher.Constraint("Parallel", 17, 21),
    Sketcher.Constraint("Perpendicular", 21, 22),
    Sketcher.Constraint("Horizontal", 7, 3, 31, 3),
    Sketcher.Constraint("Horizontal", 7, 2, 12, 1),
    Sketcher.Constraint("Horizontal", 17, 2, 25, 2),
    Sketcher.Constraint("Vertical", 8, 3, 9, 3),
    Sketcher.Constraint("Equal", 17, 21),
    Sketcher.Constraint("Radius", 2, Q("2 mm")),
    Sketcher.Constraint("Radius", 5, Q("15 mm")),
    Sketcher.Constraint("Radius", 12, Q("10 mm")),
    Sketcher.Constraint("Radius", 19, Q("30 mm")),
    Sketcher.Constraint("Diameter", 8, Q("6.2 mm")),
    Sketcher.Constraint("DistanceX", 13, 2, 13, 1, Q("120 mm")),
    Sketcher.Constraint("DistanceX", 20, 1, 20, 2, Q("15 mm")),
    Sketcher.Constraint("DistanceY", 6, 1, 6, 2, Q("190 mm")),
    Sketcher.Constraint("DistanceY", 18, 2, 18, 1, Q("5 mm")),
    Sketcher.Constraint("DistanceX", 0, 2, 0, 1, Q("22.4 mm")),
    Sketcher.Constraint("DistanceX", -1, 1, 2, 3, Q("113 mm")),
    Sketcher.Constraint("DistanceX", -1, 1, 8, 3, Q("140 mm")),
    Sketcher.Constraint("DistanceY", 8, 3, -1, 1, Q("90 mm")),
    Sketcher.Constraint("DistanceY", 9, 3, -1, 1, Q("50 mm")),
    Sketcher.Constraint("Distance", 3, Q("5.911899 mm")),
    Sketcher.Constraint("DistanceY", 1, 2, 1, 1, Q("214.243791 mm")),
])
pad2 = body.newObject("PartDesign::Pad", "Pad001")
pad2.Profile = sketch6
pad2.Length = 25.4

sketch7 = body.newObject("Sketcher::SketchObject", "Sketch006")
sketch7.AttachmentSupport = (doc.getObject("XY_Plane"), [""])
sketch7.MapMode = "FlatFace"
sketch7.AttachmentOffset = App.Placement(App.Vector(0, 0, 25.4), App.Rotation())
sketch7.addGeometry([
    Part.Circle(App.Vector(95, -70, 0), App.Vector(0, 0, 1), 3),
    Part.Circle(App.Vector(-95, 70, 0), App.Vector(0, 0, 1), 3),
], False)
sketch7.addConstraint([
    Sketcher.Constraint("Equal", 0, 1),
    Sketcher.Constraint("Symmetric", 0, 3, 1, 3, -1, 1),
    Sketcher.Constraint("Diameter", 0, Q("6 mm")),
    Sketcher.Constraint("DistanceX", -1, 1, 0, 3, Q("95 mm")),
    Sketcher.Constraint("DistanceY", 0, 3, -1, 1, Q("70 mm")),
])
doc.recompute()
hole3 = body.newObject("PartDesign::Hole", "Hole002")
hole3.Profile = sketch7
hole3.ThreadType = "None"
hole3.Diameter = 6
hole3.DepthType = "Dimension"
hole3.Depth = 10
hole3.DrillPoint = "Angled"
hole3.DrillPointAngle = 118

sketch8 = body.newObject("Sketcher::SketchObject", "Sketch007")
sketch8.AttachmentSupport = (doc.getObject("XY_Plane"), [""])
sketch8.MapMode = "FlatFace"
sketch8.AttachmentOffset = App.Placement(App.Vector(0, 0, 25.4), App.Rotation())
sketch8.addGeometry([
    Part.LineSegment(App.Vector(140, 82.5, 0), App.Vector(152.4, 82.5, 0)),
    Part.LineSegment(App.Vector(152.4, 82.5, 0), App.Vector(152.4, 110, 0)),
    Part.LineSegment(App.Vector(152.4, 110, 0), App.Vector(132.5, 110, 0)),
    Part.LineSegment(App.Vector(132.5, 110, 0), App.Vector(132.5, 90, 0)),
    Part.ArcOfCircle(Part.Circle(App.Vector(140, 90, 0), App.Vector(0, 0, 1), 7.5), math.radians(180), math.radians(270)),
    Part.LineSegment(App.Vector(152.4, 57.5, 0), App.Vector(140, 57.5, 0)),
    Part.ArcOfCircle(Part.Circle(App.Vector(140, 50, 0), App.Vector(0, 0, 1), 7.5), math.radians(90), math.radians(270)),
    Part.LineSegment(App.Vector(140, 42.5, 0), App.Vector(152.4, 42.5, 0)),
    Part.LineSegment(App.Vector(152.4, 42.5, 0), App.Vector(152.4, 57.5, 0)),
    Part.LineSegment(App.Vector(140, -57.5, 0), App.Vector(152.4, -57.5, 0)),
    Part.LineSegment(App.Vector(152.4, -57.5, 0), App.Vector(152.4, -42.5, 0)),
    Part.LineSegment(App.Vector(152.4, -42.5, 0), App.Vector(140, -42.5, 0)),
    Part.ArcOfCircle(Part.Circle(App.Vector(140, -50, 0), App.Vector(0, 0, 1), 7.5), math.radians(90), math.radians(270)),
    Part.LineSegment(App.Vector(132.5, -90, 0), App.Vector(132.5, -110, 0)),
    Part.LineSegment(App.Vector(132.5, -110, 0), App.Vector(152.4, -110, 0)),
    Part.LineSegment(App.Vector(152.4, -110, 0), App.Vector(152.4, -82.5, 0)),
    Part.LineSegment(App.Vector(152.4, -82.5, 0), App.Vector(140, -82.5, 0)),
    Part.ArcOfCircle(Part.Circle(App.Vector(140, -90, 0), App.Vector(0, 0, 1), 7.5), math.radians(90), math.radians(180)),
    Part.LineSegment(App.Vector(-140, -82.5, 0), App.Vector(-152.4, -82.5, 0)),
    Part.LineSegment(App.Vector(-152.4, -82.5, 0), App.Vector(-152.4, -110, 0)),
    Part.LineSegment(App.Vector(-152.4, -110, 0), App.Vector(-132.5, -110, 0)),
    Part.LineSegment(App.Vector(-132.5, -110, 0), App.Vector(-132.5, -90, 0)),
    Part.ArcOfCircle(Part.Circle(App.Vector(-140, -90, 0), App.Vector(0, 0, 1), 7.5), math.radians(0), math.radians(90)),
    Part.LineSegment(App.Vector(-140, -42.5, 0), App.Vector(-152.4, -42.5, 0)),
    Part.LineSegment(App.Vector(-152.4, -42.5, 0), App.Vector(-152.4, -57.5, 0)),
    Part.LineSegment(App.Vector(-152.4, -57.5, 0), App.Vector(-140, -57.5, 0)),
    Part.ArcOfCircle(Part.Circle(App.Vector(-140, -50, 0), App.Vector(0, 0, 1), 7.5), math.radians(-90), math.radians(90)),
    Part.LineSegment(App.Vector(-140, 57.5, 0), App.Vector(-152.4, 57.5, 0)),
    Part.LineSegment(App.Vector(-152.4, 57.5, 0), App.Vector(-152.4, 42.5, 0)),
    Part.LineSegment(App.Vector(-152.4, 42.5, 0), App.Vector(-140, 42.5, 0)),
    Part.ArcOfCircle(Part.Circle(App.Vector(-140, 50, 0), App.Vector(0, 0, 1), 7.5), math.radians(-90), math.radians(90)),
    Part.LineSegment(App.Vector(-132.5, 90, 0), App.Vector(-132.5, 110, 0)),
    Part.LineSegment(App.Vector(-132.5, 110, 0), App.Vector(-152.4, 110, 0)),
    Part.LineSegment(App.Vector(-152.4, 110, 0), App.Vector(-152.4, 82.5, 0)),
    Part.LineSegment(App.Vector(-152.4, 82.5, 0), App.Vector(-140, 82.5, 0)),
    Part.ArcOfCircle(Part.Circle(App.Vector(-140, 90, 0), App.Vector(0, 0, 1), 7.5), math.radians(-90), math.radians(0)),
], False)
sketch8.addConstraint([
    Sketcher.Constraint("Coincident", 0, 2, 1, 1),
    Sketcher.Constraint("Coincident", 1, 2, 2, 1),
    Sketcher.Constraint("Coincident", 2, 2, 3, 1),
    Sketcher.Constraint("Tangent", 3, 2, 4, 1),
    Sketcher.Constraint("Tangent", 4, 2, 0, 1),
    Sketcher.Constraint("Tangent", 5, 2, 6, 1),
    Sketcher.Constraint("Tangent", 6, 2, 7, 1),
    Sketcher.Constraint("Coincident", 7, 2, 8, 1),
    Sketcher.Constraint("Coincident", 8, 2, 5, 1),
    Sketcher.Constraint("Coincident", 9, 2, 10, 1),
    Sketcher.Constraint("Coincident", 10, 2, 11, 1),
    Sketcher.Constraint("Tangent", 11, 2, 12, 1),
    Sketcher.Constraint("Tangent", 12, 2, 9, 1),
    Sketcher.Constraint("Coincident", 13, 2, 14, 1),
    Sketcher.Constraint("Coincident", 14, 2, 15, 1),
    Sketcher.Constraint("Coincident", 15, 2, 16, 1),
    Sketcher.Constraint("Tangent", 16, 2, 17, 1),
    Sketcher.Constraint("Tangent", 17, 2, 13, 1),
    Sketcher.Constraint("Coincident", 18, 2, 19, 1),
    Sketcher.Constraint("Coincident", 19, 2, 20, 1),
    Sketcher.Constraint("Coincident", 20, 2, 21, 1),
    Sketcher.Constraint("Tangent", 21, 2, 22, 1),
    Sketcher.Constraint("Tangent", 22, 2, 18, 1),
    Sketcher.Constraint("Coincident", 23, 2, 24, 1),
    Sketcher.Constraint("Coincident", 24, 2, 25, 1),
    Sketcher.Constraint("Tangent", 25, 2, 26, 1),
    Sketcher.Constraint("Tangent", 26, 2, 23, 1),
    Sketcher.Constraint("Coincident", 27, 2, 28, 1),
    Sketcher.Constraint("Coincident", 28, 2, 29, 1),
    Sketcher.Constraint("Tangent", 29, 2, 30, 1),
    Sketcher.Constraint("Tangent", 30, 2, 27, 1),
    Sketcher.Constraint("Coincident", 31, 2, 32, 1),
    Sketcher.Constraint("Coincident", 32, 2, 33, 1),
    Sketcher.Constraint("Coincident", 33, 2, 34, 1),
    Sketcher.Constraint("Tangent", 34, 2, 35, 1),
    Sketcher.Constraint("Tangent", 35, 2, 31, 1),
    Sketcher.Constraint("Horizontal", 0),
    Sketcher.Constraint("Vertical", 1),
    Sketcher.Constraint("Horizontal", 2),
    Sketcher.Constraint("Vertical", 3),
    Sketcher.Constraint("Horizontal", 5),
    Sketcher.Constraint("Horizontal", 7),
    Sketcher.Constraint("Vertical", 8),
    Sketcher.Constraint("Horizontal", 9),
    Sketcher.Constraint("Vertical", 10),
    Sketcher.Constraint("Horizontal", 11),
    Sketcher.Constraint("Vertical", 13),
    Sketcher.Constraint("Horizontal", 14),
    Sketcher.Constraint("Vertical", 15),
    Sketcher.Constraint("Horizontal", 16),
    Sketcher.Constraint("Horizontal", 18),
    Sketcher.Constraint("Vertical", 19),
    Sketcher.Constraint("Horizontal", 20),
    Sketcher.Constraint("Vertical", 21),
    Sketcher.Constraint("Horizontal", 23),
    Sketcher.Constraint("Vertical", 24),
    Sketcher.Constraint("Horizontal", 25),
    Sketcher.Constraint("Horizontal", 27),
    Sketcher.Constraint("Vertical", 28),
    Sketcher.Constraint("Horizontal", 29),
    Sketcher.Constraint("Vertical", 31),
    Sketcher.Constraint("Horizontal", 32),
    Sketcher.Constraint("Vertical", 33),
    Sketcher.Constraint("Horizontal", 34),
    Sketcher.Constraint("Equal", 4, 6),
    Sketcher.Constraint("Equal", 6, 12),
    Sketcher.Constraint("Equal", 12, 17),
    Sketcher.Constraint("Equal", 17, 22),
    Sketcher.Constraint("Equal", 22, 26),
    Sketcher.Constraint("Equal", 26, 30),
    Sketcher.Constraint("Equal", 30, 35),
    Sketcher.Constraint("Symmetric", 4, 3, 22, 3, -1, 1),
    Sketcher.Constraint("Symmetric", 6, 3, 26, 3, -1, 1),
    Sketcher.Constraint("Symmetric", 12, 3, 30, 3, -1, 1),
    Sketcher.Constraint("Symmetric", 17, 3, 35, 3, -1, 1),
    Sketcher.Constraint("Symmetric", 1, 2, 19, 2, -1, 1),
    Sketcher.Constraint("Symmetric", 14, 2, 32, 2, -1, 1),
    Sketcher.Constraint("Symmetric", 17, 3, 22, 3, -2),
    Sketcher.Constraint("Symmetric", 12, 3, 26, 3, -2),
    Sketcher.Constraint("Symmetric", 14, 2, 19, 2, -2),
    Sketcher.Constraint("Vertical", 4, 3, 6, 3),
    Sketcher.Constraint("Vertical", 1, 2, 7, 2),
    Sketcher.Constraint("Vertical", 8, 2, 9, 2),
    Sketcher.Constraint("Vertical", 19, 2, 23, 2),
    Sketcher.Constraint("Vertical", 24, 2, 27, 2),
    Sketcher.Constraint("Radius", 4, Q("7.5 mm")),
    Sketcher.Constraint("DistanceY", 3, 2, 3, 1, Q("20 mm")),
    Sketcher.Constraint("DistanceX", 0, 1, 0, 2, Q("12.4 mm")),
    Sketcher.Constraint("DistanceX", -1, 1, 4, 3, Q("140 mm")),
    Sketcher.Constraint("DistanceY", -1, 1, 4, 3, Q("90 mm")),
    Sketcher.Constraint("DistanceY", -1, 1, 6, 3, Q("50 mm")),
])
pocket3 = body.newObject("PartDesign::Pocket", "Pocket002")
pocket3.Profile = sketch8
pocket3.Length = 7.4
doc.recompute()

fillet = body.newObject("PartDesign::Fillet", "Fillet")
fillet.Base = (pocket3, edges_at(pocket3, [
    (152.4, 57.5, 21.7),
    (152.4, 42.5, 21.7),
    (152.4, -42.5, 21.7),
    (152.4, -57.5, 21.7),
    (152.4, -82.5, 21.7),
    (132.5, -110, 21.7),
    (-132.5, -110, 21.7),
    (-152.4, -82.5, 21.7),
    (-152.4, -57.5, 21.7),
    (-152.4, -42.5, 21.7),
    (-152.4, 42.5, 21.7),
    (-152.4, 57.5, 21.7),
    (-152.4, 82.5, 21.7),
    (-132.5, 110, 21.7),
    (132.5, 110, 21.7),
    (152.4, 82.5, 21.7),
]))
fillet.Radius = 10

doc.recompute()
